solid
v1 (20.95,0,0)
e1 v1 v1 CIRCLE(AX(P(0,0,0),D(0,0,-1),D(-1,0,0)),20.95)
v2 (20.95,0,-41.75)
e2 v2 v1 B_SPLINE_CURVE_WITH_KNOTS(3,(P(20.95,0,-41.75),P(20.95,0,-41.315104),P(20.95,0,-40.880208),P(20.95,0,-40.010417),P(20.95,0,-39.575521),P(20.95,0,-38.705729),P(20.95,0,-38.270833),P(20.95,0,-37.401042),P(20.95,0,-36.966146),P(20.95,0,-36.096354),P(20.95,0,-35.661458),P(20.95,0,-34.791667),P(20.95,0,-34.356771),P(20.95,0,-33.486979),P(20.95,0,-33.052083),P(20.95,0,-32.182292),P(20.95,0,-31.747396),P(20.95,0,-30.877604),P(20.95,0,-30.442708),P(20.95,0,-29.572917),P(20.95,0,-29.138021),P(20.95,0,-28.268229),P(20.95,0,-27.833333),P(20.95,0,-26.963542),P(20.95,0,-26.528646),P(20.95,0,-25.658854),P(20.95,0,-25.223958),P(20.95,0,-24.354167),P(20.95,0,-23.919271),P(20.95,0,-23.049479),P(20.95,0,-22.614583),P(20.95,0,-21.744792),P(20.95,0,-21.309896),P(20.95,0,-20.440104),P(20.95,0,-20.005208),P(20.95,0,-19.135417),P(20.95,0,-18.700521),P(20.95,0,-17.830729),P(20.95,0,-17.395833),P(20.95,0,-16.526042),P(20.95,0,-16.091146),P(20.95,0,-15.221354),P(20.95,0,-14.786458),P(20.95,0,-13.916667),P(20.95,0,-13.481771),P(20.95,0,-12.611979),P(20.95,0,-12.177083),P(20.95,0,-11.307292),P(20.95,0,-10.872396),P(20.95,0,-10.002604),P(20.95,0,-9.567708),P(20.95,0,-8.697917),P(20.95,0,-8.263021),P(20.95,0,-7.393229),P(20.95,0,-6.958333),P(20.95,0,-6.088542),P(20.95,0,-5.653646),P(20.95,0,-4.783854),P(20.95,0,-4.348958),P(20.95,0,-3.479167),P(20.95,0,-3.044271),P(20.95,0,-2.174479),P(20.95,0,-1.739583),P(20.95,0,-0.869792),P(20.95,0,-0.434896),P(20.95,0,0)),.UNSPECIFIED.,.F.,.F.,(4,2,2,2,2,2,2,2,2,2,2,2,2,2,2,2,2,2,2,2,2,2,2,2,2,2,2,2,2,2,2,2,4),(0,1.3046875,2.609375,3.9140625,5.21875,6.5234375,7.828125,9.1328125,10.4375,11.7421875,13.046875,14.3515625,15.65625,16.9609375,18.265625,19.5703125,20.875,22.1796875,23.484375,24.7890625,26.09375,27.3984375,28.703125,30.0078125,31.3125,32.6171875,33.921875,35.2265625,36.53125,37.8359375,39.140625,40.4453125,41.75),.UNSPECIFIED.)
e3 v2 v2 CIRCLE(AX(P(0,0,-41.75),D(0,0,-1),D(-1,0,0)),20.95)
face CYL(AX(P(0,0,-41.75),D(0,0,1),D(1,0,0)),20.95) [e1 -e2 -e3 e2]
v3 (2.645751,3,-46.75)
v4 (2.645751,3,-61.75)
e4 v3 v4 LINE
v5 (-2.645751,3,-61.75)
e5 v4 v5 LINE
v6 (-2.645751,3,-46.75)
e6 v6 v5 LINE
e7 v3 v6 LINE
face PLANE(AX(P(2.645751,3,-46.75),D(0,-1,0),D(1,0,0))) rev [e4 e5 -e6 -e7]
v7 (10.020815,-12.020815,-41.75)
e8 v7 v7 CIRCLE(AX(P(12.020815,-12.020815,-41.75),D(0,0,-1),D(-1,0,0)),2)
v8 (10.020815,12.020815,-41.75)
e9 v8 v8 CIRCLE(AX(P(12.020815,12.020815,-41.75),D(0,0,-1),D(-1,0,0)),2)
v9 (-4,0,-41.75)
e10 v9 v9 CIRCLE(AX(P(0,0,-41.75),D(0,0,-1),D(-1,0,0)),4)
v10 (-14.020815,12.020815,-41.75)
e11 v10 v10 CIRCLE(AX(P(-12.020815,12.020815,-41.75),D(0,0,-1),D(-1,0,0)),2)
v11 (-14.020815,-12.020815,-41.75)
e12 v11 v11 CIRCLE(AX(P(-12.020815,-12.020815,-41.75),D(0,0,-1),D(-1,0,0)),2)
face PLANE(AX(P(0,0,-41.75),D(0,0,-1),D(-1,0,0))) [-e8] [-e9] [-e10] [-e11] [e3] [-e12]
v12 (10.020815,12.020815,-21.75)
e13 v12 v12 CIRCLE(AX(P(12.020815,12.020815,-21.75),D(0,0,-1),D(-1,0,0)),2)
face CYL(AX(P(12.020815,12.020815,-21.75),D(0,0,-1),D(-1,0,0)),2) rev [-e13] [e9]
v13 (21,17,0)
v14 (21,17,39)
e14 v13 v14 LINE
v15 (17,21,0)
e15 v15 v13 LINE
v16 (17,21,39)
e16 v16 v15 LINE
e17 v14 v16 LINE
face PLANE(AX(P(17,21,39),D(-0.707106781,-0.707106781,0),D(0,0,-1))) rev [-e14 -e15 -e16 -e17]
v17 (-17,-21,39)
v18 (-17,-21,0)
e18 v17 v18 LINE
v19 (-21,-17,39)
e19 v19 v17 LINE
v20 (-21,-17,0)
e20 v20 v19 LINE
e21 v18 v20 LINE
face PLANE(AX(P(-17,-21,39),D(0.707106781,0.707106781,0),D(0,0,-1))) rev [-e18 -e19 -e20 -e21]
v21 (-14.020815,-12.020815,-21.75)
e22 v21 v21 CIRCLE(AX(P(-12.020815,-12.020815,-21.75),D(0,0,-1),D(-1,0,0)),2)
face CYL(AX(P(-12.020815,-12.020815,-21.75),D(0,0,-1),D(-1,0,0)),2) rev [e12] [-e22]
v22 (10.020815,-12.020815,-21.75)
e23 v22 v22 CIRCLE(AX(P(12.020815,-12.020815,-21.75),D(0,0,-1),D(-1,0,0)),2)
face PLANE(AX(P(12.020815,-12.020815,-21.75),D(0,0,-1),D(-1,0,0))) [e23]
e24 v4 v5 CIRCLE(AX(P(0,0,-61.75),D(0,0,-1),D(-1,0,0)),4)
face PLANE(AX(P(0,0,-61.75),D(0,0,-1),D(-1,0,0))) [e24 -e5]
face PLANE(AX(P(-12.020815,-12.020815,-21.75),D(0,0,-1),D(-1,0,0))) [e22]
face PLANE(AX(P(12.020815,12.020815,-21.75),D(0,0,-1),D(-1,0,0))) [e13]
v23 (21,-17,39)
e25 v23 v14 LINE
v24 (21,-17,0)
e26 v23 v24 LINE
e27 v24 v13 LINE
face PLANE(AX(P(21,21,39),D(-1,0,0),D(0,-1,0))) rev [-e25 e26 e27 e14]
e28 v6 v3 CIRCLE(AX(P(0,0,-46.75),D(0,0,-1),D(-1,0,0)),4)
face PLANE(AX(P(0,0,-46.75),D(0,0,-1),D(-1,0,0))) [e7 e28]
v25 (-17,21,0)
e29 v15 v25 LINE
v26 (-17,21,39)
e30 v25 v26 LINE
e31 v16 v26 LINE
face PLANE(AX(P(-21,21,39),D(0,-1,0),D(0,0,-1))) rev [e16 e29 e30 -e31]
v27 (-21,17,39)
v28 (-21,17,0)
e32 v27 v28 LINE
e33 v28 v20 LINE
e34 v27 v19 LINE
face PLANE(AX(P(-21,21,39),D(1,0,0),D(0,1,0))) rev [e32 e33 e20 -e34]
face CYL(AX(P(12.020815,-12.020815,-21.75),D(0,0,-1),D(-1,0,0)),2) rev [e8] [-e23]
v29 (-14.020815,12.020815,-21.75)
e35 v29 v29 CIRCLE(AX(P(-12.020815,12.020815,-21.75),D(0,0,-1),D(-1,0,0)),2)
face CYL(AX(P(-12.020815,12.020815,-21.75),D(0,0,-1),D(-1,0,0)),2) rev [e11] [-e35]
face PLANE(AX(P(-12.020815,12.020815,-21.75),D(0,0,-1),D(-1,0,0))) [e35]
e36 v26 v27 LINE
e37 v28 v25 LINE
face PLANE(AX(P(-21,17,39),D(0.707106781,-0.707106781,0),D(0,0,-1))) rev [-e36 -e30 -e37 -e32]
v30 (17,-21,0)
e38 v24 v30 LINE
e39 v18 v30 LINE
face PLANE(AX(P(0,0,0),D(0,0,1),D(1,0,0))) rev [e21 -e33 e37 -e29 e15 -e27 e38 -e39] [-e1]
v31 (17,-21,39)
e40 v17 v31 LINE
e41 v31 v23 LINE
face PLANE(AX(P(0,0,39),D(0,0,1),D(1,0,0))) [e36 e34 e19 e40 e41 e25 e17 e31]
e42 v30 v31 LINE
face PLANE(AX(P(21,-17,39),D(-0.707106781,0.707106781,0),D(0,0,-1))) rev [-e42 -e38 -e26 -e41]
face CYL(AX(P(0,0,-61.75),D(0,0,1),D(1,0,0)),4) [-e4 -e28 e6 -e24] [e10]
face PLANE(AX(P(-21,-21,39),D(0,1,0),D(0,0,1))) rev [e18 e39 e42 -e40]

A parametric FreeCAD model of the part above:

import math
import FreeCAD as App
import Part
import Sketcher


def edges_at(feature, points):
    """Names of the edges that pass closest to the given points."""
    edges = feature.Shape.Edges
    near = lambda p: min(range(len(edges)), key=lambda i: edges[i].distToShape(Part.Vertex(*p))[0])
    return sorted({f"Edge{near(p) + 1}" for p in points})

doc = App.newDocument("Part")
params = doc.addObject("Spreadsheet::Sheet", "Params")
for row, (alias, value) in enumerate([
    ("sketch1_width", "42 mm"),
    ("pad1_length", "39 mm"),
    ("chamfer_size", "4 mm"),
    ("sketch2_diameter", "41.9 mm"),
    ("pad2_length", "41.75 mm"),
    ("sketch3_diameter", "8 mm"),
    ("pad3_length", "20 mm"),
    ("sketch4_radius", "4 mm"),
    ("pocket1_length", "15 mm"),
    ("sketch5_diameter", "4 mm"),
    ("pocket2_length", "20 mm"),
], start=1):
    params.set(f"A{row}", alias)
    params.set(f"B{row}", "=" + value)
    params.setAlias(f"B{row}", alias)

body = doc.addObject("PartDesign::Body", "Body")

sketch1 = doc.addObject("Sketcher::SketchObject", "Sketch")
body.addObject(sketch1)
sketch1.AttachmentSupport = (doc.XY_Plane, [""])
sketch1.MapMode = "FlatFace"
sketch1.addGeometry([
    Part.LineSegment(App.Vector(-21, 21, 0), App.Vector(-21, -21, 0)),
    Part.LineSegment(App.Vector(-21, -21, 0), App.Vector(21, -21, 0)),
    Part.LineSegment(App.Vector(21, -21, 0), App.Vector(21, 21, 0)),
    Part.LineSegment(App.Vector(21, 21, 0), App.Vector(-21, 21, 0)),
], False)
sketch1.addConstraint([
    Sketcher.Constraint("Coincident", 0, 2, 1, 1),
    Sketcher.Constraint("Coincident", 1, 2, 2, 1),
    Sketcher.Constraint("Coincident", 2, 2, 3, 1),
    Sketcher.Constraint("Coincident", 3, 2, 0, 1),
    Sketcher.Constraint("Vertical", 0),
    Sketcher.Constraint("Horizontal", 1),
    Sketcher.Constraint("Vertical", 2),
    Sketcher.Constraint("Horizontal", 3),
    Sketcher.Constraint("Symmetric", 0, 2, 2, 2, -1, 1),
    Sketcher.Constraint("Equal", 3, 0),
    Sketcher.Constraint("DistanceX", 1, 1, 1, 2, 42.0),
])
sketch1.setExpression("Constraints[10]", "Params.sketch1_width")
pad1 = doc.addObject("PartDesign::Pad", "Pad")
body.addObject(pad1)
pad1.Profile = sketch1
pad1.setExpression("Length", "Params.pad1_length")
doc.recompute()

chamfer = doc.addObject("PartDesign::Chamfer", "Chamfer")
body.addObject(chamfer)
chamfer.Base = (pad1, edges_at(pad1, [
    (21, -21, 19.5),
    (-21, -21, 19.5),
    (-21, 21, 19.5),
    (21, 21, 19.5),
]))
chamfer.setExpression("Size", "Params.chamfer_size")

sketch2 = doc.addObject("Sketcher::SketchObject", "Sketch001")
body.addObject(sketch2)
sketch2.AttachmentSupport = (doc.XY_Plane, [""])
sketch2.MapMode = "FlatFace"
sketch2.addGeometry(Part.Circle(App.Vector(0, 0, 0), App.Vector(0, 0, 1), 21), False)
sketch2.addConstraint([
    Sketcher.Constraint("Coincident", 0, 3, -1, 1),
    Sketcher.Constraint("Diameter", 0, 41.9),
])
sketch2.setExpression("Constraints[1]", "Params.sketch2_diameter")
pad2 = doc.addObject("PartDesign::Pad", "Pad001")
body.addObject(pad2)
pad2.Profile = sketch2
pad2.setExpression("Length", "Params.pad2_length")
pad2.Reversed = True

sketch3 = doc.addObject("Sketcher::SketchObject", "Sketch002")
body.addObject(sketch3)
sketch3.AttachmentSupport = (doc.XY_Plane, [""])
sketch3.MapMode = "FlatFace"
sketch3.AttachmentOffset = App.Placement(App.Vector(0, 0, -41.75), App.Rotation())
sketch3.addGeometry(Part.Circle(App.Vector(0, 0, 0), App.Vector(0, 0, 1), 4), False)
sketch3.addConstraint([
    Sketcher.Constraint("Coincident", 0, 3, -1, 1),
    Sketcher.Constraint("Diameter", 0, 8.0),
])
sketch3.setExpression("Constraints[1]", "Params.sketch3_diameter")
pad3 = doc.addObject("PartDesign::Pad", "Pad002")
body.addObject(pad3)
pad3.Profile = sketch3
pad3.setExpression("Length", "Params.pad3_length")
pad3.Reversed = True

sketch4 = doc.addObject("Sketcher::SketchObject", "Sketch003")
body.addObject(sketch4)
sketch4.AttachmentSupport = (doc.XY_Plane, [""])
sketch4.MapMode = "FlatFace"
sketch4.AttachmentOffset = App.Placement(App.Vector(0, 0, -46.75), App.Rotation())
sketch4.addGeometry([
    Part.LineSegment(App.Vector(2.6, 3, 0), App.Vector(-2.6, 3, 0)),
    Part.ArcOfCircle(Part.Circle(App.Vector(0, 0, 0), App.Vector(0, 0, 1), 4), math.radians(49), math.radians(131)),
], False)
sketch4.addConstraint([
    Sketcher.Constraint("Coincident", 0, 1, 1, 1),
    Sketcher.Constraint("Coincident", 1, 2, 0, 2),
    Sketcher.Constraint("Horizontal", 0),
    Sketcher.Constraint("Coincident", 1, 3, -1, 1),
    Sketcher.Constraint("Radius", 1, 4.0),
    Sketcher.Constraint("DistanceY", -1, 1, 0, 1, 3.0),
])
sketch4.setExpression("Constraints[4]", "Params.sketch4_radius")
pocket1 = doc.addObject("PartDesign::Pocket", "Pocket")
body.addObject(pocket1)
pocket1.Profile = sketch4
pocket1.setExpression("Length", "Params.pocket1_length")

sketch5 = doc.addObject("Sketcher::SketchObject", "Sketch004")
body.addObject(sketch5)
sketch5.AttachmentSupport = (doc.XY_Plane, [""])
sketch5.MapMode = "FlatFace"
sketch5.AttachmentOffset = App.Placement(App.Vector(0, 0, -41.75), App.Rotation())
sketch5.addGeometry([
    Part.Circle(App.Vector(-12, 12, 0), App.Vector(0, 0, 1), 2),
    Part.Circle(App.Vector(-12, -12, 0), App.Vector(0, 0, 1), 2),
    Part.Circle(App.Vector(12, -12, 0), App.Vector(0, 0, 1), 2),
    Part.Circle(App.Vector(12, 12, 0), App.Vector(0, 0, 1), 2),
], False)
sketch5.addConstraint([
    Sketcher.Constraint("Equal", 0, 1),
    Sketcher.Constraint("Equal", 1, 2),
    Sketcher.Constraint("Equal", 2, 3),
    Sketcher.Constraint("Symmetric", 0, 3, 2, 3, -1, 1),
    Sketcher.Constraint("Symmetric", 1, 3, 3, 3, -1, 1),
    Sketcher.Constraint("Symmetric", 1, 3, 2, 3, -2),
    Sketcher.Constraint("Diameter", 0, 4.0),
    Sketcher.Constraint("DistanceY", 1, 3, 0, 3, 24.041631),
    Sketcher.Constraint("DistanceX", 1, 3, 2, 3, 24.041631),
])
sketch5.setExpression("Constraints[6]", "Params.sketch5_diameter")
pocket2 = doc.addObject("PartDesign::Pocket", "Pocket001")
body.addObject(pocket2)
pocket2.Profile = sketch5
pocket2.setExpression("Length", "Params.pocket2_length")
pocket2.Reversed = True

doc.recompute()
